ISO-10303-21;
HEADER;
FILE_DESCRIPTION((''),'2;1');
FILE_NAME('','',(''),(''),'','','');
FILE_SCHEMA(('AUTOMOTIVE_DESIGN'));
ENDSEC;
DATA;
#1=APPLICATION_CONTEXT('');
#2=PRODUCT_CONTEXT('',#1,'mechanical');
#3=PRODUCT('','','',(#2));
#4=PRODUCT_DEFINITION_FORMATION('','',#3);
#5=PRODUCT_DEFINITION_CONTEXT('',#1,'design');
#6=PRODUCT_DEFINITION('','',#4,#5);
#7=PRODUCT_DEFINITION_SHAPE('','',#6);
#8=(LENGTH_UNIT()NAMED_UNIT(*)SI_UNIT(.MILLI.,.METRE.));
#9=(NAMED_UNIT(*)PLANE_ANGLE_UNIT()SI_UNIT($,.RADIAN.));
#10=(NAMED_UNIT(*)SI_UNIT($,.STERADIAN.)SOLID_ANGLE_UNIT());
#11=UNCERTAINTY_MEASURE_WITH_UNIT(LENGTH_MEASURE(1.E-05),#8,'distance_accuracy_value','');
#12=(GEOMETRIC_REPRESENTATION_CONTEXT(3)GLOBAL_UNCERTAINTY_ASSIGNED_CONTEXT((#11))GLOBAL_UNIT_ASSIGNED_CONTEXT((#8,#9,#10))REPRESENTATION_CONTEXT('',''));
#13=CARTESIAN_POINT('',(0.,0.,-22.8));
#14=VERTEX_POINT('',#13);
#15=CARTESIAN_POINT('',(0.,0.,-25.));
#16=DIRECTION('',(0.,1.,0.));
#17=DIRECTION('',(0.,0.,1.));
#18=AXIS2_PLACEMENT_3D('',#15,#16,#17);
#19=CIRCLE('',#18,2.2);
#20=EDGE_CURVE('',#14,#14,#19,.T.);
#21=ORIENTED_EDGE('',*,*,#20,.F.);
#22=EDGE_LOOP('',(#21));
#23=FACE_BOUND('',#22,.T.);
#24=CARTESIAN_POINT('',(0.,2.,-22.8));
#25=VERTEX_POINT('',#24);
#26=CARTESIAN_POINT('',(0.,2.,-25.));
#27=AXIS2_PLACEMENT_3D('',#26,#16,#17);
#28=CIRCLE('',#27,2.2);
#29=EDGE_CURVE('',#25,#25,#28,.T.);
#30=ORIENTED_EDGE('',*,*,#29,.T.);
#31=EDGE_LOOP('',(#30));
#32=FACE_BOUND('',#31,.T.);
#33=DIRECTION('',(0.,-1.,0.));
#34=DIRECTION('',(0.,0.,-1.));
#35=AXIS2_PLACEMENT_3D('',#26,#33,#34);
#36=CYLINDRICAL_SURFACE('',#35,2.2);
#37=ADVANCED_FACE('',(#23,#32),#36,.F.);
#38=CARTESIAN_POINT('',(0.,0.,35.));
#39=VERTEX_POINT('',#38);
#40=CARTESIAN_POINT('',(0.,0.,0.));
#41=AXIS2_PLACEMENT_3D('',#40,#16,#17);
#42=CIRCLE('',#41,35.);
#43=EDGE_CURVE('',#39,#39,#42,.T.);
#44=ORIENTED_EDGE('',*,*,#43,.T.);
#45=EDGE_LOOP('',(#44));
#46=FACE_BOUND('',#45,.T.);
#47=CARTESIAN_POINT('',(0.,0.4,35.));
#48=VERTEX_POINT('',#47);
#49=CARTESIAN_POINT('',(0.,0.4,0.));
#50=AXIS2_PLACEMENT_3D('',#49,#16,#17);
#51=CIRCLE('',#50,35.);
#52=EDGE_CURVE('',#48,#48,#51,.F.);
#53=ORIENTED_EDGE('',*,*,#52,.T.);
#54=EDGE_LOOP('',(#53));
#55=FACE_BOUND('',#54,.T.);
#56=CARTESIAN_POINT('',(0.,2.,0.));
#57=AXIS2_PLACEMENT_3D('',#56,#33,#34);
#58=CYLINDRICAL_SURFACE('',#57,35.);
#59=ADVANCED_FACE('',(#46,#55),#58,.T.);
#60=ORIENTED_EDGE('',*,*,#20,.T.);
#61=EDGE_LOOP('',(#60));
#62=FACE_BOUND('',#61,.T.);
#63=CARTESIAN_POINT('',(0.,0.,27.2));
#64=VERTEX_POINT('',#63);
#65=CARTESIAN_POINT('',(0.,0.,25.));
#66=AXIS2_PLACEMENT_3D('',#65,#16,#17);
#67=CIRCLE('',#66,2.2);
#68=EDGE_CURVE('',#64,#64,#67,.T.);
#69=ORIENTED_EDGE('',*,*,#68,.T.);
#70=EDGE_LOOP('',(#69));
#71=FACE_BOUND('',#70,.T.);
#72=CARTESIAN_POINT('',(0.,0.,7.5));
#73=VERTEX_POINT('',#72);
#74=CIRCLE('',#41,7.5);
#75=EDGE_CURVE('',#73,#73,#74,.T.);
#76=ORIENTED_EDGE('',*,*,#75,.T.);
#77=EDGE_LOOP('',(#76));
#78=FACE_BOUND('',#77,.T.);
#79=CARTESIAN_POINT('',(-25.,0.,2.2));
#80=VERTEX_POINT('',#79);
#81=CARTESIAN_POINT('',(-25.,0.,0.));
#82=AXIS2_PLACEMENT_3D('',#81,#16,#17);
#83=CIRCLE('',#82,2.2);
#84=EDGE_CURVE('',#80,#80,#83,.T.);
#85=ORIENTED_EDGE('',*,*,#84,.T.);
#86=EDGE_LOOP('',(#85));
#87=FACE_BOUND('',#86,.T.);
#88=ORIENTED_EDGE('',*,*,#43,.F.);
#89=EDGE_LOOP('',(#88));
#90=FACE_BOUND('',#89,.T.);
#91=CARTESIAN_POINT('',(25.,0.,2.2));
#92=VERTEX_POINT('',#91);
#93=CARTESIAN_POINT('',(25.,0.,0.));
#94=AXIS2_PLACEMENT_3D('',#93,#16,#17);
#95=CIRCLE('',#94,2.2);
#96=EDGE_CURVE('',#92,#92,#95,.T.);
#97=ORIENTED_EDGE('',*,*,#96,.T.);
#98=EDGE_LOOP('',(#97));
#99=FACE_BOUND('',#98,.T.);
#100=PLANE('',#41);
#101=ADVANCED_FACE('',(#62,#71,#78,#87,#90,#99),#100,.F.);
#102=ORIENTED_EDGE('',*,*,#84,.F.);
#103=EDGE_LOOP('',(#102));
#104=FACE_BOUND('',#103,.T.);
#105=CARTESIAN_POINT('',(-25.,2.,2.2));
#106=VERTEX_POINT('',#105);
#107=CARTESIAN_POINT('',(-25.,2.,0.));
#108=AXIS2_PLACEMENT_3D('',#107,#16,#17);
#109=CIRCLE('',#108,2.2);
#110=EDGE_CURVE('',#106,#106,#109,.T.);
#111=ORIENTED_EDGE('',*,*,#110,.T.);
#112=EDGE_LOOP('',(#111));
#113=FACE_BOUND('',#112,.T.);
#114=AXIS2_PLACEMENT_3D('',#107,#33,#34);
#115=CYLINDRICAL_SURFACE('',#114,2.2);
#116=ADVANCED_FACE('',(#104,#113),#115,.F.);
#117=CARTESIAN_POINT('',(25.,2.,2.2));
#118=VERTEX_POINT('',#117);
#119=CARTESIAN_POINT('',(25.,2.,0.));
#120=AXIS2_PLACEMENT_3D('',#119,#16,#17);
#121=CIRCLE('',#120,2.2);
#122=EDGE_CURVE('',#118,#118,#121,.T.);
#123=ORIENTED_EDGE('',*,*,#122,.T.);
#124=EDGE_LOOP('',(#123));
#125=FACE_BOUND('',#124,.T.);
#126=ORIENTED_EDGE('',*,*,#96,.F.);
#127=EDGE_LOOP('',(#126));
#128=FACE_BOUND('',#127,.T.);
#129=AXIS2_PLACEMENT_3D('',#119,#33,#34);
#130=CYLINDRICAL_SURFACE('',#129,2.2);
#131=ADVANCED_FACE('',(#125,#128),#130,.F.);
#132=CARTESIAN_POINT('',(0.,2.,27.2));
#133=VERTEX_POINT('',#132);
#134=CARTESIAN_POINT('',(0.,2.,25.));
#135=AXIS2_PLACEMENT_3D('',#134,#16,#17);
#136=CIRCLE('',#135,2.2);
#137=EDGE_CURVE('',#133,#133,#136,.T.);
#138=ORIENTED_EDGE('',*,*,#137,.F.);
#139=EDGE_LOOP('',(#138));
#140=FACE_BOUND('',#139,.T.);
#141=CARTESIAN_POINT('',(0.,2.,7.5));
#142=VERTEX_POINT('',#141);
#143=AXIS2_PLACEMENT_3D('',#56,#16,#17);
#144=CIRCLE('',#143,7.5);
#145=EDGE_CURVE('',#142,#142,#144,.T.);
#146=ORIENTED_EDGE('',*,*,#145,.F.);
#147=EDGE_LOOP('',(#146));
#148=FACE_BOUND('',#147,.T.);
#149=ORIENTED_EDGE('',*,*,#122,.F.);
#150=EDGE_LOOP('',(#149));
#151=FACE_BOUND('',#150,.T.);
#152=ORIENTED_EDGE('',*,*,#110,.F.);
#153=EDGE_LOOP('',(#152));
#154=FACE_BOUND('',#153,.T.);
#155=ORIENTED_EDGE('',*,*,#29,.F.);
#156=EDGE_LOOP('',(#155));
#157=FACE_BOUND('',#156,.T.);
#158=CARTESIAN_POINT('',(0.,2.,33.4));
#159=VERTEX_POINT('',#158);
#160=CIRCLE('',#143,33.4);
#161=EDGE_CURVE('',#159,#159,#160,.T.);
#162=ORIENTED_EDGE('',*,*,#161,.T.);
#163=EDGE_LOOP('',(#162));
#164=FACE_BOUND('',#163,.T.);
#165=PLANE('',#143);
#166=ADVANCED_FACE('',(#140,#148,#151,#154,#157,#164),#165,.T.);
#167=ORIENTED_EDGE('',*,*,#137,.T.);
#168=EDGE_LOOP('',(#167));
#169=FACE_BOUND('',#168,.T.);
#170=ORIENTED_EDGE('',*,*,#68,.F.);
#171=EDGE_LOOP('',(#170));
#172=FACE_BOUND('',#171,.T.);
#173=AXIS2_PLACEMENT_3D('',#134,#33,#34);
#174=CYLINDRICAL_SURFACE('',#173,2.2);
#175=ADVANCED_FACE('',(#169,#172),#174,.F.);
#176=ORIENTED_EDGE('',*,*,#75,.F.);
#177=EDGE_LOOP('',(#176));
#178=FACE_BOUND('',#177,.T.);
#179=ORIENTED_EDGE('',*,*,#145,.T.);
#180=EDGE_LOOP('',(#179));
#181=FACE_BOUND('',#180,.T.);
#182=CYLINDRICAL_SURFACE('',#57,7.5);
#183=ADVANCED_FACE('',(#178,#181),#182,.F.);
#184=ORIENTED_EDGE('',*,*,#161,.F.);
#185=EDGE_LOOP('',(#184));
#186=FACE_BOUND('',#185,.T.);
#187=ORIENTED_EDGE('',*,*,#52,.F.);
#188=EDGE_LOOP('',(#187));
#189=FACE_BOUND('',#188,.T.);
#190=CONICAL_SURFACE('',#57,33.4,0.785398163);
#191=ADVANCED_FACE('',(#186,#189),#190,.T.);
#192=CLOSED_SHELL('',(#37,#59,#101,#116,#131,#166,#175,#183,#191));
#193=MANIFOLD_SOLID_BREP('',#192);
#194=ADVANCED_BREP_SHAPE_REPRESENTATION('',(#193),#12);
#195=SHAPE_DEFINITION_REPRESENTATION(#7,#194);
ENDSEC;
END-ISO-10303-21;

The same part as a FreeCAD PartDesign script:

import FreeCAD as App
import Part
import Sketcher
from FreeCAD import Vector
Q = App.Units.Quantity


def edges_at(feature, points):
    """Names of the edges that pass closest to the given points."""
    edges = feature.Shape.Edges
    near = lambda p: min(range(len(edges)), key=lambda i: edges[i].distToShape(Part.Vertex(*p))[0])
    return sorted({f"Edge{near(p) + 1}" for p in points})

doc = App.newDocument("Part")
body = doc.addObject("PartDesign::Body", "Body")

# Sketch on XZ plane
sketch1 = body.newObject("Sketcher::SketchObject", "Sketch")
sketch1.AttachmentSupport = (doc.getObject("XZ_Plane"), [""])
sketch1.MapMode = "FlatFace"
sketch1.addGeometry([
    Part.Circle(Vector(0, 0, 0), Vector(0, 0, 1), 35),  # 0
    Part.Circle(Vector(0, -25, 0), Vector(0, 0, 1), 2.2),  # 1
    Part.Circle(Vector(-25, 0, 0), Vector(0, 0, 1), 2.2),  # 2
    Part.Circle(Vector(25, 0, 0), Vector(0, 0, 1), 2.2),  # 3
    Part.Circle(Vector(0, 0, 0), Vector(0, 0, 1), 7.5),  # 4
    Part.Circle(Vector(0, 25, 0), Vector(0, 0, 1), 2.2),  # 5
], False)
sketch1.addConstraint([
    Sketcher.Constraint("Coincident", 0, 3, -1, 1),
    Sketcher.Constraint("Coincident", 4, 3, -1, 1),
    Sketcher.Constraint("Equal", 1, 2),
    Sketcher.Constraint("Equal", 2, 3),
    Sketcher.Constraint("Equal", 3, 5),
    Sketcher.Constraint("Symmetric", 2, 3, 3, 3, -1, 1),
    Sketcher.Constraint("Symmetric", 1, 3, 5, 3, -1, 1),
    Sketcher.Constraint("PointOnObject", 1, 3, -2),
    Sketcher.Constraint("PointOnObject", 2, 3, -1),
    Sketcher.Constraint("Diameter", 0, Q("70 mm")),
    Sketcher.Constraint("Diameter", 4, Q("15 mm")),
    Sketcher.Constraint("Diameter", 1, Q("4.4 mm")),
    Sketcher.Constraint("DistanceY", 1, 3, -1, 1, Q("25 mm")),
    Sketcher.Constraint("DistanceX", 2, 3, -1, 1, Q("25 mm")),
])
pad1 = body.newObject("PartDesign::Pad", "Pad")
pad1.Profile = sketch1
pad1.Length = 2
pad1.Reversed = True
doc.recompute()

chamfer = body.newObject("PartDesign::Chamfer", "Chamfer")
chamfer.Base = (pad1, edges_at(pad1, [(0, 2, -35)]))
chamfer.Size = 1.6

doc.recompute()
